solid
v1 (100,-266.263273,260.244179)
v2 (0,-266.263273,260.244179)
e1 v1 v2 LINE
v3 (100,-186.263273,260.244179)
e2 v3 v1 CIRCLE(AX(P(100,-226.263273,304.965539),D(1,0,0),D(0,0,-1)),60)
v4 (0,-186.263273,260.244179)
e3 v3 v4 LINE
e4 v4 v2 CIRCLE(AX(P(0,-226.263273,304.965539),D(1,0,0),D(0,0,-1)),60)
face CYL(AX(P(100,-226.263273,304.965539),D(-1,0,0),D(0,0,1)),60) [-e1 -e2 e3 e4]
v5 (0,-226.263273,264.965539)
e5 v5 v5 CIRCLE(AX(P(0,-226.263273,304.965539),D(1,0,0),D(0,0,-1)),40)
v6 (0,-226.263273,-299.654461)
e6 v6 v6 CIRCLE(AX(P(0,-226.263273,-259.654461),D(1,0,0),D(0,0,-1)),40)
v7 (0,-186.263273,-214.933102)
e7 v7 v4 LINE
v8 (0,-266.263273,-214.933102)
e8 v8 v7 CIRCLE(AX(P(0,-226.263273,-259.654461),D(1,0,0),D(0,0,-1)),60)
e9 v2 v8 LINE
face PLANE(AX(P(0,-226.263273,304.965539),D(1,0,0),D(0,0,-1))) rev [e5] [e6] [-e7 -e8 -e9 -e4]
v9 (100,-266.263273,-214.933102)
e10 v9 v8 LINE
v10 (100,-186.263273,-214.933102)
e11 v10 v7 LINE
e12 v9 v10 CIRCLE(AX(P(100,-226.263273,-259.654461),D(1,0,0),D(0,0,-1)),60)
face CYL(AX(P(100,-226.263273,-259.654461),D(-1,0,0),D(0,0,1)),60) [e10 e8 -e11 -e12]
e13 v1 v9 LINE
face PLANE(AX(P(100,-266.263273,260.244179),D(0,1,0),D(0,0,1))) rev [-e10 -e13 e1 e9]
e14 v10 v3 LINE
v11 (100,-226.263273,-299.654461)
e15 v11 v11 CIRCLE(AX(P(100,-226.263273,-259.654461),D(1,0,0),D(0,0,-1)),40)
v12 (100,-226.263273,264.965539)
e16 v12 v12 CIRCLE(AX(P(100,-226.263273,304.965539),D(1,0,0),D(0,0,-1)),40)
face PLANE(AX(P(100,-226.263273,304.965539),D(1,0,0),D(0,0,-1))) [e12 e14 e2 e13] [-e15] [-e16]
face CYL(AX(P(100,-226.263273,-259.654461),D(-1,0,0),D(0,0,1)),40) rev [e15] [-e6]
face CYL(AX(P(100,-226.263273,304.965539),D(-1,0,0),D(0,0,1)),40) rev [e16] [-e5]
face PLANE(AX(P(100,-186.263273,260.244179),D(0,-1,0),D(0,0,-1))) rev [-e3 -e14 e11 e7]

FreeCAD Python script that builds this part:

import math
import FreeCAD as App
import Part
import Sketcher
from FreeCAD import Vector

doc = App.newDocument("Part")
params = doc.addObject("Spreadsheet::Sheet", "Params")
for row, (alias, value) in enumerate([
    ("sketch1_diameter", "80 mm"),
    ("sketch1_radius", "60 mm"),
    ("pad1_length", "100 mm"),
], start=1):
    params.set(f"A{row}", alias)
    params.set(f"B{row}", "=" + value)
    params.setAlias(f"B{row}", alias)

body = doc.addObject("PartDesign::Body", "Body")

sketch1 = body.newObject("Sketcher::SketchObject", "Sketch")
sketch1.AttachmentSupport = (doc.getObject("YZ_Plane"), [""])
sketch1.MapMode = "FlatFace"
sketch1.addGeometry(Part.LineSegment(Vector(-186, -215, 0), Vector(-186, 260, 0)), False)
sketch1.addGeometry(Part.ArcOfCircle(Part.Circle(Vector(-226, 305, 0), Vector(0, 0, 1), 60), math.radians(-48), math.radians(228)), False)
sketch1.addGeometry(Part.LineSegment(Vector(-266, 260, 0), Vector(-266, -215, 0)), False)
sketch1.addGeometry(Part.ArcOfCircle(Part.Circle(Vector(-226, -260, 0), Vector(0, 0, 1), 60), math.radians(132), math.radians(408)), False)
sketch1.addGeometry(Part.Circle(Vector(-226, -260, 0), Vector(0, 0, 1), 40), False)
sketch1.addGeometry(Part.Circle(Vector(-226, 305, 0), Vector(0, 0, 1), 40), False)
sketch1.addConstraint(Sketcher.Constraint("Coincident", 0, 2, 1, 1))
sketch1.addConstraint(Sketcher.Constraint("Coincident", 1, 2, 2, 1))
sketch1.addConstraint(Sketcher.Constraint("Coincident", 2, 2, 3, 1))
sketch1.addConstraint(Sketcher.Constraint("Coincident", 3, 2, 0, 1))
sketch1.addConstraint(Sketcher.Constraint("Vertical", 0))
sketch1.addConstraint(Sketcher.Constraint("Vertical", 2))
sketch1.addConstraint(Sketcher.Constraint("Coincident", 4, 3, 3, 3))
sketch1.addConstraint(Sketcher.Constraint("Coincident", 5, 3, 1, 3))
sketch1.addConstraint(Sketcher.Constraint("Equal", 1, 3))
sketch1.addConstraint(Sketcher.Constraint("Equal", 4, 5))
sketch1.addConstraint(Sketcher.Constraint("Horizontal", 0, 2, 1, 2))
sketch1.addConstraint(Sketcher.Constraint("Horizontal", 2, 2, 3, 2))
sketch1.addConstraint(Sketcher.Constraint("Diameter", 4, 80.0))
sketch1.addConstraint(Sketcher.Constraint("Radius", 1, 60.0))
sketch1.addConstraint(Sketcher.Constraint("DistanceX", 1, 3, 0, 2, 40.0))
sketch1.addConstraint(Sketcher.Constraint("DistanceY", 3, 3, 1, 3, 564.62))
sketch1.addConstraint(Sketcher.Constraint("DistanceY", 2, 2, -1, 1, 214.933102))
sketch1.addConstraint(Sketcher.Constraint("DistanceX", 1, 3, -1, 1, 226.263273))
sketch1.setExpression("Constraints[12]", "Params.sketch1_diameter")
sketch1.setExpression("Constraints[13]", "Params.sketch1_radius")
pad1 = body.newObject("PartDesign::Pad", "Pad")
pad1.Profile = sketch1
pad1.setExpression("Length", "Params.pad1_length")

doc.recompute()
